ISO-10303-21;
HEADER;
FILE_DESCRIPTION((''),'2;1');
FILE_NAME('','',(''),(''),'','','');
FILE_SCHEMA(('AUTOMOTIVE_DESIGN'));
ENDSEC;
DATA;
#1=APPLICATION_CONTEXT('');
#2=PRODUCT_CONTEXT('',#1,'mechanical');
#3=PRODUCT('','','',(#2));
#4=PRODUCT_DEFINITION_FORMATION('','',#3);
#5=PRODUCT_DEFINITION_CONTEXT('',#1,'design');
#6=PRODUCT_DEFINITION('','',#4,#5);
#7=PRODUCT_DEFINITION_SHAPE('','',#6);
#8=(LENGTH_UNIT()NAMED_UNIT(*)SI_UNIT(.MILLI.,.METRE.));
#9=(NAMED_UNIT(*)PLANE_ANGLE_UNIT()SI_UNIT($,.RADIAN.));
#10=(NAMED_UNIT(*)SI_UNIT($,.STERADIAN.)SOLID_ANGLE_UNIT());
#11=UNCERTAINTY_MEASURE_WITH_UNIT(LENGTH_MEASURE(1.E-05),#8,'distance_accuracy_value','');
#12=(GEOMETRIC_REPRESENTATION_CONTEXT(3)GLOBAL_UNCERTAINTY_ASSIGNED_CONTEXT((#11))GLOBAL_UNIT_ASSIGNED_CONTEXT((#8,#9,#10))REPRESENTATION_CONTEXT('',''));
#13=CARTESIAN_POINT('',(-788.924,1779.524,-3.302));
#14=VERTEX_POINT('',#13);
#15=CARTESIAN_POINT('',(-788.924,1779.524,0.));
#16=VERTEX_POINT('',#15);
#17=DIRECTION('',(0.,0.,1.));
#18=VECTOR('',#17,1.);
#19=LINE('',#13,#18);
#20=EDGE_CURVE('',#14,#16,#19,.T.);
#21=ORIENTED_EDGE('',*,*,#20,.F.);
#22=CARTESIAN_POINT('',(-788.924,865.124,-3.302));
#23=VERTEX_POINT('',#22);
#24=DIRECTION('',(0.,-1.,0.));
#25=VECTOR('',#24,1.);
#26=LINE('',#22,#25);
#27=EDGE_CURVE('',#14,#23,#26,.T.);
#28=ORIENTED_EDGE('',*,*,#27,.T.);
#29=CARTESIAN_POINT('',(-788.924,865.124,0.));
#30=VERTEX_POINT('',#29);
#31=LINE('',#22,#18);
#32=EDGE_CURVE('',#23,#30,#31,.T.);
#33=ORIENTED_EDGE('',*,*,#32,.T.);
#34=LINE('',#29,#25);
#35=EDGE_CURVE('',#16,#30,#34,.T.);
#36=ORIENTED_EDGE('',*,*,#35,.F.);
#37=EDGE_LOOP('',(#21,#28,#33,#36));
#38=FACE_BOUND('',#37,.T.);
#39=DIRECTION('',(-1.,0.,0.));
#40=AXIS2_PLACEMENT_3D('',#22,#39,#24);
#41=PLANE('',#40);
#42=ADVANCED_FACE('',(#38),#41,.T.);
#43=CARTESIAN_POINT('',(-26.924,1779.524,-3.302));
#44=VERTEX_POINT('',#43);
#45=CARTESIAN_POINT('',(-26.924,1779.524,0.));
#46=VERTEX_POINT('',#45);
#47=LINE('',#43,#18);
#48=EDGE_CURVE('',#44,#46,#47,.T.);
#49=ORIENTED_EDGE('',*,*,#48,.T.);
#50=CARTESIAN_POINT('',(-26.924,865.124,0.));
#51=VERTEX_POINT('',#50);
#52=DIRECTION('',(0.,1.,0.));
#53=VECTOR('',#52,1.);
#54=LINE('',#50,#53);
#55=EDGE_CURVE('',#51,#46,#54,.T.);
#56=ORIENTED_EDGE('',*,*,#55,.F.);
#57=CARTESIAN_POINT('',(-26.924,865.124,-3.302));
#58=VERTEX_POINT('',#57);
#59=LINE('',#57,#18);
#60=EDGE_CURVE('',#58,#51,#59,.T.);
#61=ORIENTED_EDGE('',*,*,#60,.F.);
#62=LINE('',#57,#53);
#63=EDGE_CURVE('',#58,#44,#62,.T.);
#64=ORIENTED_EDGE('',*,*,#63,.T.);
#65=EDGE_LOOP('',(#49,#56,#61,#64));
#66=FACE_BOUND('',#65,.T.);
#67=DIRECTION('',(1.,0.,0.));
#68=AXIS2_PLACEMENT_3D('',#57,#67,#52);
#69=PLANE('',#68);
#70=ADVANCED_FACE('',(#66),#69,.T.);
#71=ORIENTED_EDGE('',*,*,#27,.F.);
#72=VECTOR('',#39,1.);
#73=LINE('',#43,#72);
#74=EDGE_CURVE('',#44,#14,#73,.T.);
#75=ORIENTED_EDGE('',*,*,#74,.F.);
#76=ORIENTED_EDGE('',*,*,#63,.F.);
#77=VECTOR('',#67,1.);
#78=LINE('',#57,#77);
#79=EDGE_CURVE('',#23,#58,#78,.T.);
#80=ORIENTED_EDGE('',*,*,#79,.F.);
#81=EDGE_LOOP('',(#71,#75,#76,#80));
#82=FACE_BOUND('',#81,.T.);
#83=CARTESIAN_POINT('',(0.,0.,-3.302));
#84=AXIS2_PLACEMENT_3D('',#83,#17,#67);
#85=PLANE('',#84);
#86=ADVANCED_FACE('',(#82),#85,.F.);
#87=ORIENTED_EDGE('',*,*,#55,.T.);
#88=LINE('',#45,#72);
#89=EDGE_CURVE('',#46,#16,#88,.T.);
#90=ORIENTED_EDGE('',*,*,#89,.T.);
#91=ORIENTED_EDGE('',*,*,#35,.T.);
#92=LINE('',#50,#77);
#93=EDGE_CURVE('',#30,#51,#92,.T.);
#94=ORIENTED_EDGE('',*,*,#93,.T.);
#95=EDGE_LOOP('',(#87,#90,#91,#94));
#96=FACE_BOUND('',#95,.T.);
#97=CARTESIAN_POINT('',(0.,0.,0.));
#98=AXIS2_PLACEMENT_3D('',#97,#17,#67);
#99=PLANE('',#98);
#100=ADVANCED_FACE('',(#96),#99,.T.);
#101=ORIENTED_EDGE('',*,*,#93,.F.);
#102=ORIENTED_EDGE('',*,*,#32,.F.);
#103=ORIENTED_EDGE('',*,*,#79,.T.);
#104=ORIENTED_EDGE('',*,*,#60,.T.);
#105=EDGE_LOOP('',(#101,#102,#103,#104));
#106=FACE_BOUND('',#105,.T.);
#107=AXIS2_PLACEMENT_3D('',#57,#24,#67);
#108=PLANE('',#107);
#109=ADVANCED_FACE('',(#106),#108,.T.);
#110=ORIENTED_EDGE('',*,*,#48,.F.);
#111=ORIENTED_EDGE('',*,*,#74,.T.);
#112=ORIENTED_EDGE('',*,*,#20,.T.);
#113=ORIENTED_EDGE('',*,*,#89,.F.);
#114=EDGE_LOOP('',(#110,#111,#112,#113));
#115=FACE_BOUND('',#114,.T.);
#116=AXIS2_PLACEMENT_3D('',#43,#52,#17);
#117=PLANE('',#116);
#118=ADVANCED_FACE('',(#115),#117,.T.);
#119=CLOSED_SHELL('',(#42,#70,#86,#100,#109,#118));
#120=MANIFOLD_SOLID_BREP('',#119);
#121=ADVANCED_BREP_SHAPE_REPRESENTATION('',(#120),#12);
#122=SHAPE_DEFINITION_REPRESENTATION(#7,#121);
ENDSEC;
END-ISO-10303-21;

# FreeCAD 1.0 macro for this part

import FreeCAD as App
import Part
import Sketcher
Q = App.Units.Quantity


def add_polygon(sketch, points):
    """Adds a closed chain of lines whose ends are joined by coincident constraints."""
    first, n = sketch.GeometryCount, len(points)
    for a, b in zip(points, points[1:] + points[:1]):
        sketch.addGeometry(Part.LineSegment(App.Vector(*a, 0), App.Vector(*b, 0)), False)
    for i in range(n):
        sketch.addConstraint(Sketcher.Constraint("Coincident", first + i, 2, first + (i + 1) % n, 1))

doc = App.newDocument("Part")
body = doc.addObject("PartDesign::Body", "Body")

sketch1 = body.newObject("Sketcher::SketchObject", "Sketch")
sketch1.AttachmentSupport = (doc.getObject("XY_Plane"), [""])
sketch1.MapMode = "FlatFace"
add_polygon(sketch1, [(-789, 1780), (-789, 865), (-27, 865), (-27, 1780)])
sketch1.addConstraint(Sketcher.Constraint("Vertical", 0))
sketch1.addConstraint(Sketcher.Constraint("Horizontal", 1))
sketch1.addConstraint(Sketcher.Constraint("Vertical", 2))
sketch1.addConstraint(Sketcher.Constraint("Horizontal", 3))
sketch1.addConstraint(Sketcher.Constraint("DistanceX", 1, 1, 1, 2, Q("30 in")))
sketch1.addConstraint(Sketcher.Constraint("DistanceY", 0, 2, 0, 1, Q("36 in")))
sketch1.addConstraint(Sketcher.Constraint("DistanceX", 0, 2, -1, 1, Q("31.06 in")))
sketch1.addConstraint(Sketcher.Constraint("DistanceY", -1, 1, 0, 2, Q("34.06 in")))
pad1 = body.newObject("PartDesign::Pad", "Pad")
pad1.Profile = sketch1
pad1.Length = Q("0.13 in")
pad1.Reversed = True

doc.recompute()
